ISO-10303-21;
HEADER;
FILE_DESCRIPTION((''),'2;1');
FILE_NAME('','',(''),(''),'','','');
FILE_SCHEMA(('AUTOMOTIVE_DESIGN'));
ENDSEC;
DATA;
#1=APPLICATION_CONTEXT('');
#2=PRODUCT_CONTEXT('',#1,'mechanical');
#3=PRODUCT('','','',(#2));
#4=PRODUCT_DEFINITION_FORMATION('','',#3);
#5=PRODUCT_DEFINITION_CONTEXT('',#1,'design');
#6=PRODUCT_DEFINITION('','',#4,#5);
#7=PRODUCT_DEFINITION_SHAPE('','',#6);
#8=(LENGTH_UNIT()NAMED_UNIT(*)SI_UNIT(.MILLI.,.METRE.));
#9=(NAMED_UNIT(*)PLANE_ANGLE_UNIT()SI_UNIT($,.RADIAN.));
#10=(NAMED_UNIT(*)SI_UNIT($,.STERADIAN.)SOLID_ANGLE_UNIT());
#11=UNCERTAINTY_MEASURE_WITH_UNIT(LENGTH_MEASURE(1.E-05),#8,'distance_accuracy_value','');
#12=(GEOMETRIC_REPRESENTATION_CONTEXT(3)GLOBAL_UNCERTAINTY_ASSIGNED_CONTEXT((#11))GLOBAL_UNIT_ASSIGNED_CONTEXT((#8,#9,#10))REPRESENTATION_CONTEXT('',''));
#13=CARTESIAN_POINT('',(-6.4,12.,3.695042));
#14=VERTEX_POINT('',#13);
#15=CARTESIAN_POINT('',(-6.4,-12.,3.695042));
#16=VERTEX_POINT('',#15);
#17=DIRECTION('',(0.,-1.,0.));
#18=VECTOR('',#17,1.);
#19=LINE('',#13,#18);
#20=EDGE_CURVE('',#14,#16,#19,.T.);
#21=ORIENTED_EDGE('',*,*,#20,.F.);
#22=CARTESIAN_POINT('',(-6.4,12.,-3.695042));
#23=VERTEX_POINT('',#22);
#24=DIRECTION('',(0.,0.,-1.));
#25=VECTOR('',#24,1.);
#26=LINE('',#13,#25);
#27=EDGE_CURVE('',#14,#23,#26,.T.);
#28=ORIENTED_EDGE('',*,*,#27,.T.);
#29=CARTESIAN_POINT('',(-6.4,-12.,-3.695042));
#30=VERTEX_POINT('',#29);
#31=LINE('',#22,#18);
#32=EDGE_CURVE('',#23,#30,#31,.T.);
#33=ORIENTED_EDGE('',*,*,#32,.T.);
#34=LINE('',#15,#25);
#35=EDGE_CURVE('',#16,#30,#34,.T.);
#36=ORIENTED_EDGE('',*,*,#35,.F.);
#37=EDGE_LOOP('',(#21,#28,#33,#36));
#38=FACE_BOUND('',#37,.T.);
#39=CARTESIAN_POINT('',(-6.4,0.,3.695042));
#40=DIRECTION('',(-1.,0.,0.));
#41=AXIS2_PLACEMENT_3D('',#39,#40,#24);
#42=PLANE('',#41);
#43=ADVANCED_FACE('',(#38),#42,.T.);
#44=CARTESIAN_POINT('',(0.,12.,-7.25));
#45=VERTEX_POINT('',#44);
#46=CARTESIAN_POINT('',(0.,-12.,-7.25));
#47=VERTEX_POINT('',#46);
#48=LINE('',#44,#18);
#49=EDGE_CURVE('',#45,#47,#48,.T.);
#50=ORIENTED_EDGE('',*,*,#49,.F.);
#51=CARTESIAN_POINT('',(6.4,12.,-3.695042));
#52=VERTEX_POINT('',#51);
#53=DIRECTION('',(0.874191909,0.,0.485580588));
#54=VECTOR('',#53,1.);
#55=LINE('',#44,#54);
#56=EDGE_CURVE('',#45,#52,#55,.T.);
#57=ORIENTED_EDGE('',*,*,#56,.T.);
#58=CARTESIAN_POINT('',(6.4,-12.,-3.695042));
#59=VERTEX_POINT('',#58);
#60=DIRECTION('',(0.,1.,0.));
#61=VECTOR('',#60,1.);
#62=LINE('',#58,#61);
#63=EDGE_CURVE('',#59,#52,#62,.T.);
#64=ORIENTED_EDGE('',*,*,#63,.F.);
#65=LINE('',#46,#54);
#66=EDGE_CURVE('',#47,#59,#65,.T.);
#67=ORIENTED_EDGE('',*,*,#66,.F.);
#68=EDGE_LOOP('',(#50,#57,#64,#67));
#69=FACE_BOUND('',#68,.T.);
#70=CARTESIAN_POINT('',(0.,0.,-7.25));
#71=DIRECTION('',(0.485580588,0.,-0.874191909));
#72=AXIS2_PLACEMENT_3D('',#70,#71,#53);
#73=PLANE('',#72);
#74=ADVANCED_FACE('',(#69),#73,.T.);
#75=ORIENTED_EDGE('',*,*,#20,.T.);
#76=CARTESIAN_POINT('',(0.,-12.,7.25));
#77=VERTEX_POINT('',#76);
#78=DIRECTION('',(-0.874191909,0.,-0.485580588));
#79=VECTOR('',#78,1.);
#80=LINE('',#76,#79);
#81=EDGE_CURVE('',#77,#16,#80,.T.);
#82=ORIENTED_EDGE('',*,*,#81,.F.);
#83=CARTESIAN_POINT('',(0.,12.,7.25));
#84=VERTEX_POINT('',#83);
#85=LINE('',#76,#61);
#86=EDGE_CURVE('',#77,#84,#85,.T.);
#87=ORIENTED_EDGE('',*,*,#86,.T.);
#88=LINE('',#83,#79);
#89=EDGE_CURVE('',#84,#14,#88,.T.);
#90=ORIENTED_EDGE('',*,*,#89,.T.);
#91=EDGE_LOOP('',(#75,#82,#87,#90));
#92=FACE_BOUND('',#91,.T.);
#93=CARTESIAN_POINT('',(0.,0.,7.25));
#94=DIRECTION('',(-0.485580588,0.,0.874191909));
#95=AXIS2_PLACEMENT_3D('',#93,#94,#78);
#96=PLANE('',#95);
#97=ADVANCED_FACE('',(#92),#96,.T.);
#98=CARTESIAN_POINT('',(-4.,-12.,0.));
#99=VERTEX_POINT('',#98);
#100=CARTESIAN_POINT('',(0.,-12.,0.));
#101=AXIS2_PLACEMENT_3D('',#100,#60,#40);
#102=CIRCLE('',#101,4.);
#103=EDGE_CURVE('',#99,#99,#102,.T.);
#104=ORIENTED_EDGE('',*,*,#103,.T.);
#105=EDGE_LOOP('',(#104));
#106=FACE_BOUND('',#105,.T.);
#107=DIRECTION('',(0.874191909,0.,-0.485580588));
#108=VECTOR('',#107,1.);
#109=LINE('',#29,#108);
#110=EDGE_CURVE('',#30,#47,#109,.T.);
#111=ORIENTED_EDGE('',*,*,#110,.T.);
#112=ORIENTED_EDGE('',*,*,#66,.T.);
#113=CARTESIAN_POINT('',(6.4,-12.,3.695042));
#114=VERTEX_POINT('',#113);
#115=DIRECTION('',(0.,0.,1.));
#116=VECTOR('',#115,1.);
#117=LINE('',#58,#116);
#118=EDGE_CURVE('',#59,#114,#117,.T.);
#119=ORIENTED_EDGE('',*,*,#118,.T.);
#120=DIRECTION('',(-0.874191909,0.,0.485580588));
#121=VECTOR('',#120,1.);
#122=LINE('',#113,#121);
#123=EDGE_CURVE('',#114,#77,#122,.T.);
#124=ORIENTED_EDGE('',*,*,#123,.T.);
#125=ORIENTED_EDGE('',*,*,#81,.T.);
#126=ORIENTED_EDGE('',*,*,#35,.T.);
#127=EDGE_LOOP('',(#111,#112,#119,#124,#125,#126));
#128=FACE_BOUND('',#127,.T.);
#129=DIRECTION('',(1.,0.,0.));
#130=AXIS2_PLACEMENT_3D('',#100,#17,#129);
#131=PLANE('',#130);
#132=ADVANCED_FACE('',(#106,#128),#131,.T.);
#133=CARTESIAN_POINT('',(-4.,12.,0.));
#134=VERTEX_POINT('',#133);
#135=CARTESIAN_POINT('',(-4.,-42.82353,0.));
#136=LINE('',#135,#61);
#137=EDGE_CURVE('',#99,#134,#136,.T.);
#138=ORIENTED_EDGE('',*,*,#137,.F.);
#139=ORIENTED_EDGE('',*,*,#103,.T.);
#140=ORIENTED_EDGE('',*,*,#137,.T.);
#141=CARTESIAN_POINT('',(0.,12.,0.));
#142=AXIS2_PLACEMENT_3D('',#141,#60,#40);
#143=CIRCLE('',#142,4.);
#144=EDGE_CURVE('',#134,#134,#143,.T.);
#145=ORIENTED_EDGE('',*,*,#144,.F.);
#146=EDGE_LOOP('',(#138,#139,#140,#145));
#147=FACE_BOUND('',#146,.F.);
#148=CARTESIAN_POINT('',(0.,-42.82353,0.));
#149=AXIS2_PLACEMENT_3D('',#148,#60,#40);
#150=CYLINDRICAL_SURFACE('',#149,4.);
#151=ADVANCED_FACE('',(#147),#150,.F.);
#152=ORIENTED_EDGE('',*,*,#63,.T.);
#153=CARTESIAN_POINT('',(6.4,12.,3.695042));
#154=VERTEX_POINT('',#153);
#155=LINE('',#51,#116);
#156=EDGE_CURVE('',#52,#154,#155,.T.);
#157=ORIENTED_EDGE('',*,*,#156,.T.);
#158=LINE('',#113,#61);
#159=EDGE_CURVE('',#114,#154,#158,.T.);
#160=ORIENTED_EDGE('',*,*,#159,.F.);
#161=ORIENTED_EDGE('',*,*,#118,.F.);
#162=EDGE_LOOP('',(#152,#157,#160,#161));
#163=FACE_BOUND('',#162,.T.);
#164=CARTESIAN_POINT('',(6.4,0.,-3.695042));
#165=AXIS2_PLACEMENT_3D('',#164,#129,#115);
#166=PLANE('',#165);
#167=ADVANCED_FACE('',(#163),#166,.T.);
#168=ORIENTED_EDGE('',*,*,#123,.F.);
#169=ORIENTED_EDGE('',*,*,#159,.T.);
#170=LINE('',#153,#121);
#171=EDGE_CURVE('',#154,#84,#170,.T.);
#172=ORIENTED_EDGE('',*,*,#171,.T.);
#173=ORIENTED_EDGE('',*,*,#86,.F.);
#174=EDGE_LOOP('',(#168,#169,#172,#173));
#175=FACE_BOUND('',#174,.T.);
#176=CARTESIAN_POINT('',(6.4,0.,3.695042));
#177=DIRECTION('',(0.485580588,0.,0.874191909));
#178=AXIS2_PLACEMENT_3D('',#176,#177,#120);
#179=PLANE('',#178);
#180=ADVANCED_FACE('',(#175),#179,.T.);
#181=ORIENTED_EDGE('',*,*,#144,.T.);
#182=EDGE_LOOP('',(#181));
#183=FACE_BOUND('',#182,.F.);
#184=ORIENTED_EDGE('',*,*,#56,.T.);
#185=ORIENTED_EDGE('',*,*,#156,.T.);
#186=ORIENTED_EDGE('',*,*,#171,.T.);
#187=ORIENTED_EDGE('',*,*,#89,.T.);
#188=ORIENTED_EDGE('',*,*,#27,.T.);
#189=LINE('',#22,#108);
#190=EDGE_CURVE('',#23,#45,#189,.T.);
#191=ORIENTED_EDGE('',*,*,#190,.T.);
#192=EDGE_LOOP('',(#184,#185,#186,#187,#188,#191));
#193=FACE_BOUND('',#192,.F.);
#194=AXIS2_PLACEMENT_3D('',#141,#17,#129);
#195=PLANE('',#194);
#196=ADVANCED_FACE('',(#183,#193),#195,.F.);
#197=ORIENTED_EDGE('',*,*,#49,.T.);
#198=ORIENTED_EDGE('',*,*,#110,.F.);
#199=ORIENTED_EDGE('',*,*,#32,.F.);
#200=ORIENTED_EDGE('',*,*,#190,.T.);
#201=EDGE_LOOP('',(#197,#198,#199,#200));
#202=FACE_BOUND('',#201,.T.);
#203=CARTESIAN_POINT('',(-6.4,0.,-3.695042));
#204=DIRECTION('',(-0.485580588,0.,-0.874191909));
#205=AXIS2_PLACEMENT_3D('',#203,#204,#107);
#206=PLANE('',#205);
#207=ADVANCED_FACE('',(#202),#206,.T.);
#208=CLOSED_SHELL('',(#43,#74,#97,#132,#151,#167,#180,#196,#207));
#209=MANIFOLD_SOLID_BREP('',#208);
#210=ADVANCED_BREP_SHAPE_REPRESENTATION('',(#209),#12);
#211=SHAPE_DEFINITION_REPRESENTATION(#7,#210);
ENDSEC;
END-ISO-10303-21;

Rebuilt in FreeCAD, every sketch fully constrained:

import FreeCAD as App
import Part
import Sketcher
from FreeCAD import Vector


def add_polygon(sketch, points):
    """Adds a closed chain of lines whose ends are joined by coincident constraints."""
    first, n = sketch.GeometryCount, len(points)
    for a, b in zip(points, points[1:] + points[:1]):
        sketch.addGeometry(Part.LineSegment(App.Vector(*a, 0), App.Vector(*b, 0)), False)
    for i in range(n):
        sketch.addConstraint(Sketcher.Constraint("Coincident", first + i, 2, first + (i + 1) % n, 1))

doc = App.newDocument("Part")
body = doc.addObject("PartDesign::Body", "Body")

# Sketch on XZ plane
sketch1 = doc.addObject("Sketcher::SketchObject", "Sketch")
body.addObject(sketch1)
sketch1.AttachmentSupport = (doc.XZ_Plane, [""])
sketch1.MapMode = "FlatFace"
add_polygon(sketch1, [(0, 7), (-6, 4), (-6, -4), (0, -7), (6, -4), (6, 4)])  # lines 0-5
sketch1.addConstraint([
    Sketcher.Constraint("Vertical", 1),
    Sketcher.Constraint("Vertical", 4),
    Sketcher.Constraint("Symmetric", 0, 2, 3, 2, -1, 1),
    Sketcher.Constraint("Symmetric", 2, 2, 5, 2, -1, 1),
    Sketcher.Constraint("PointOnObject", 2, 2, -2),
    Sketcher.Constraint("Parallel", 2, 5),
    Sketcher.Constraint("Horizontal", 1, 2, 3, 2),
    Sketcher.Constraint("DistanceX", 0, 2, -1, 1, 6.4),
    Sketcher.Constraint("DistanceY", 2, 2, 5, 2, 14.5),
    Sketcher.Constraint("DistanceY", 1, 2, 1, 1, 7.390083),
])
pad1 = doc.addObject("PartDesign::Pad", "Pad")
body.addObject(pad1)
pad1.Profile = sketch1
pad1.Length = 24
pad1.Midplane = True

# Sketch on XZ plane
sketch2 = doc.addObject("Sketcher::SketchObject", "Sketch001")
body.addObject(sketch2)
sketch2.AttachmentSupport = (doc.XZ_Plane, [""])
sketch2.MapMode = "FlatFace"
sketch2.AttachmentOffset = App.Placement(Vector(0, 0, 12), App.Rotation())
sketch2.addGeometry(Part.Circle(Vector(0, 0, 0), Vector(0, 0, 1), 4), False)
sketch2.addConstraint([
    Sketcher.Constraint("Coincident", 0, 3, -1, 1),
    Sketcher.Constraint("Diameter", 0, 8.0),
])
doc.recompute()
hole = doc.addObject("PartDesign::Hole", "Hole")
body.addObject(hole)
hole.Profile = sketch2
hole.ThreadType = "None"
hole.Diameter = 8
hole.DepthType = "ThroughAll"

doc.recompute()
